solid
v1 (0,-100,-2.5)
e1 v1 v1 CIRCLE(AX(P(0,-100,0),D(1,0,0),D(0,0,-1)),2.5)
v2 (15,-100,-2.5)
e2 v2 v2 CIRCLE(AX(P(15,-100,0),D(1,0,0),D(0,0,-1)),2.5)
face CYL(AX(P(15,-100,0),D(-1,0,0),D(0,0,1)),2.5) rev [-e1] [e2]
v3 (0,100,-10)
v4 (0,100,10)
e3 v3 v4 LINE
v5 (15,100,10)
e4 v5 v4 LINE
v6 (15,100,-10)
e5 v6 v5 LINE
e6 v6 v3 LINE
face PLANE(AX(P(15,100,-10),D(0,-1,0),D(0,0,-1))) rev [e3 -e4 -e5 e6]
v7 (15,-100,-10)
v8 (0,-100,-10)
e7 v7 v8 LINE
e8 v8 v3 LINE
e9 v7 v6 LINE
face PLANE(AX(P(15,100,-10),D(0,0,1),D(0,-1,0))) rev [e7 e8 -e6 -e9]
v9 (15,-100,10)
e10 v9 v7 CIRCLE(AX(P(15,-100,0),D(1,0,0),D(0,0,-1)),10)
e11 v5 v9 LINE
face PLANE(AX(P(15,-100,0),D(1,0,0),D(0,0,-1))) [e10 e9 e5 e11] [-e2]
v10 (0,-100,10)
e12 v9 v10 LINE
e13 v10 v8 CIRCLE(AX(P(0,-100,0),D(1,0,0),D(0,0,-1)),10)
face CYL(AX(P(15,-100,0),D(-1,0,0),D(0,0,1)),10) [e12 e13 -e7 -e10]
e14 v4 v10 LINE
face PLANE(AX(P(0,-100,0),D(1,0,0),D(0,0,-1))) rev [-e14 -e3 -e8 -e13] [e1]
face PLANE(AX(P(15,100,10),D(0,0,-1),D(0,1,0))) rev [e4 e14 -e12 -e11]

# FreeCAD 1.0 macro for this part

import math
import FreeCAD as App
import Part
import Sketcher
from FreeCAD import Vector

doc = App.newDocument("Part")
params = doc.addObject("Spreadsheet::Sheet", "Params")
for row, (alias, value) in enumerate([
    ("sketch1_diameter", "5 mm"),
    ("sketch1_radius", "10 mm"),
    ("sketch1_width", "200 mm"),
    ("pad1_length", "15 mm"),
], start=1):
    params.set(f"A{row}", alias)
    params.set(f"B{row}", "=" + value)
    params.setAlias(f"B{row}", alias)

body = doc.addObject("PartDesign::Body", "Body")

sketch1 = body.newObject("Sketcher::SketchObject", "Sketch")
sketch1.AttachmentSupport = (doc.getObject("YZ_Plane"), [""])
sketch1.MapMode = "FlatFace"
sketch1.addGeometry(Part.LineSegment(Vector(100, -10, 0), Vector(100, 10, 0)), False)
sketch1.addGeometry(Part.LineSegment(Vector(100, 10, 0), Vector(-100, 10, 0)), False)
sketch1.addGeometry(Part.ArcOfCircle(Part.Circle(Vector(-100, 0, 0), Vector(0, 0, 1), 10), math.radians(90), math.radians(270)), False)
sketch1.addGeometry(Part.LineSegment(Vector(-100, -10, 0), Vector(100, -10, 0)), False)
sketch1.addGeometry(Part.Circle(Vector(-100, 0, 0), Vector(0, 0, 1), 2.5), False)
sketch1.addConstraint(Sketcher.Constraint("Coincident", 0, 2, 1, 1))
sketch1.addConstraint(Sketcher.Constraint("Tangent", 1, 2, 2, 1))
sketch1.addConstraint(Sketcher.Constraint("Tangent", 2, 2, 3, 1))
sketch1.addConstraint(Sketcher.Constraint("Coincident", 3, 2, 0, 1))
sketch1.addConstraint(Sketcher.Constraint("Vertical", 0))
sketch1.addConstraint(Sketcher.Constraint("Horizontal", 1))
sketch1.addConstraint(Sketcher.Constraint("Horizontal", 3))
sketch1.addConstraint(Sketcher.Constraint("Coincident", 4, 3, 2, 3))
sketch1.addConstraint(Sketcher.Constraint("Symmetric", 0, 2, 2, 2, -1, 1))
sketch1.addConstraint(Sketcher.Constraint("Diameter", 4, 5.0))
sketch1.addConstraint(Sketcher.Constraint("Radius", 2, 10.0))
sketch1.addConstraint(Sketcher.Constraint("DistanceX", 1, 2, 1, 1, 200.0))
sketch1.setExpression("Constraints[9]", "Params.sketch1_diameter")
sketch1.setExpression("Constraints[10]", "Params.sketch1_radius")
sketch1.setExpression("Constraints[11]", "Params.sketch1_width")
pad1 = body.newObject("PartDesign::Pad", "Pad")
pad1.Profile = sketch1
pad1.setExpression("Length", "Params.pad1_length")

doc.recompute()
